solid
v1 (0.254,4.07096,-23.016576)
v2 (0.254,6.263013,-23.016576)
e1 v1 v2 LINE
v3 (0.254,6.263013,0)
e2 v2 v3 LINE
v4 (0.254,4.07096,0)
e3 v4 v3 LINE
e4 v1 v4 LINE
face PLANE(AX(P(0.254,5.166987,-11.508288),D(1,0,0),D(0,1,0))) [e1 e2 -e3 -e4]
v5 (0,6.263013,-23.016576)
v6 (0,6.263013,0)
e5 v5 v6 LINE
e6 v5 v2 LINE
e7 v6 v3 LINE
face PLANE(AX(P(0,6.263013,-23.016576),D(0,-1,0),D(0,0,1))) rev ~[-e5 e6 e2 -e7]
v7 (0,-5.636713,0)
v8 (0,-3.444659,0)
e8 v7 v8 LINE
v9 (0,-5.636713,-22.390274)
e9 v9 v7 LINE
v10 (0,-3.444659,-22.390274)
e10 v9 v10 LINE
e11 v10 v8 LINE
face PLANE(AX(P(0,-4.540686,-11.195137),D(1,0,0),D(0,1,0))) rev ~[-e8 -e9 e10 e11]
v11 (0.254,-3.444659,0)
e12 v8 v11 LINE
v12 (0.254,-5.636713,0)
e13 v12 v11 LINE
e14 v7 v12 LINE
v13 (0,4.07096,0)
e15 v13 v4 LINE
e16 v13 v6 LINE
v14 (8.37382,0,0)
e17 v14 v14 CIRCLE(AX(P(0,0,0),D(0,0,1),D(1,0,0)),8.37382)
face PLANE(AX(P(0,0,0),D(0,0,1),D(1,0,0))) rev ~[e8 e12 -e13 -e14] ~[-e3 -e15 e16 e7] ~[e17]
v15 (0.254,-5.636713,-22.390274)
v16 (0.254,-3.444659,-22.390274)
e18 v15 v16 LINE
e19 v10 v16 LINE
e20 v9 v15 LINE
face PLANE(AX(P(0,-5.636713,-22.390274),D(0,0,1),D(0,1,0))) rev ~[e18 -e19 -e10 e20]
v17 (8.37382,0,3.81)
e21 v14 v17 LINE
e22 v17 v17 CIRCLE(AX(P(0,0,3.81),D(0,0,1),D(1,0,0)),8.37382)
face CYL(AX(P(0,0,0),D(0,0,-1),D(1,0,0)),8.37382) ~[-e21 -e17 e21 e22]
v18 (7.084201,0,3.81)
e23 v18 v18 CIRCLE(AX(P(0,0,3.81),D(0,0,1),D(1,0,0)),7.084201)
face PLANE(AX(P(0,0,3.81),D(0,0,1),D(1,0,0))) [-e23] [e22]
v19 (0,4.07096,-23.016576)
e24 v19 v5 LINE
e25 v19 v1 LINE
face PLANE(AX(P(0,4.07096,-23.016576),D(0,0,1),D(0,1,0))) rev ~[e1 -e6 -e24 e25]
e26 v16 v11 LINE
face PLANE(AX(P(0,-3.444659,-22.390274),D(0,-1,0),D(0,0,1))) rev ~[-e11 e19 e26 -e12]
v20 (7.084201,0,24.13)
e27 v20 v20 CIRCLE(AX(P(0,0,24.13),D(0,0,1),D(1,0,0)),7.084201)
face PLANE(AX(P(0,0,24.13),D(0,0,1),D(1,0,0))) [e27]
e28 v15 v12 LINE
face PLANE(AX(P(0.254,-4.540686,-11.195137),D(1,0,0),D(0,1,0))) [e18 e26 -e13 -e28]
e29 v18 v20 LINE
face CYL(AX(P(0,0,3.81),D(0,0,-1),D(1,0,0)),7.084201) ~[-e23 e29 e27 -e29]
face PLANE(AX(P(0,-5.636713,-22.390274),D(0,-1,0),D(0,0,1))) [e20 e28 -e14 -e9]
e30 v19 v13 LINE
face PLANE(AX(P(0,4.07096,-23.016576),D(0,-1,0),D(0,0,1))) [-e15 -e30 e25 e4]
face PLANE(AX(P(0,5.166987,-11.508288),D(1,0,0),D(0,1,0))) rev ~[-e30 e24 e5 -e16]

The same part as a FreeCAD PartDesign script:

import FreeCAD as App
import Part
import Sketcher
from FreeCAD import Vector
Q = App.Units.Quantity

doc = App.newDocument("Part")
body = doc.addObject("PartDesign::Body", "Body")

# Sketch on XY plane
sketch1 = doc.addObject("Sketcher::SketchObject", "Sketch")
body.addObject(sketch1)
sketch1.AttachmentSupport = (doc.XY_Plane, [""])
sketch1.MapMode = "FlatFace"
sketch1.addGeometry(Part.Circle(Vector(0, 0, 0), Vector(0, 0, 1), 8.37382), False)
sketch1.addConstraint(Sketcher.Constraint("Coincident", 0, 3, -1, 1))
sketch1.addConstraint(Sketcher.Constraint("Diameter", 0, Q("16.74764 mm")))
pad1 = doc.addObject("PartDesign::Pad", "Pad")
body.addObject(pad1)
pad1.Profile = sketch1
pad1.Length = Q("0.15 in")

# Sketch on XY plane
sketch2 = doc.addObject("Sketcher::SketchObject", "Sketch001")
body.addObject(sketch2)
sketch2.AttachmentSupport = (doc.XY_Plane, [""])
sketch2.MapMode = "FlatFace"
sketch2.AttachmentOffset = App.Placement(Vector(0, 0, 0.15 * 25.4), App.Rotation())
sketch2.addGeometry(Part.Circle(Vector(0, 0, 0), Vector(0, 0, 1), 7.084201), False)
sketch2.addConstraint(Sketcher.Constraint("Coincident", 0, 3, -1, 1))
sketch2.addConstraint(Sketcher.Constraint("Diameter", 0, Q("14.168402 mm")))
pad2 = doc.addObject("PartDesign::Pad", "Pad001")
body.addObject(pad2)
pad2.Profile = sketch2
pad2.Length = Q("0.8 in")

# Sketch on YZ plane
sketch3 = doc.addObject("Sketcher::SketchObject", "Sketch002")
body.addObject(sketch3)
sketch3.AttachmentSupport = (doc.YZ_Plane, [""])
sketch3.MapMode = "FlatFace"
sketch3.addGeometry(Part.LineSegment(Vector(4.07096, 0, 0), Vector(4.07096, -23.016576, 0)), False)
sketch3.addGeometry(Part.LineSegment(Vector(4.07096, -23.016576, 0), Vector(6.263013, -23.016576, 0)), False)
sketch3.addGeometry(Part.LineSegment(Vector(6.263013, -23.016576, 0), Vector(6.263013, 0, 0)), False)
sketch3.addGeometry(Part.LineSegment(Vector(6.263013, 0, 0), Vector(4.07096, 0, 0)), False)
sketch3.addConstraint(Sketcher.Constraint("Coincident", 0, 2, 1, 1))
sketch3.addConstraint(Sketcher.Constraint("Coincident", 1, 2, 2, 1))
sketch3.addConstraint(Sketcher.Constraint("Coincident", 2, 2, 3, 1))
sketch3.addConstraint(Sketcher.Constraint("Coincident", 3, 2, 0, 1))
sketch3.addConstraint(Sketcher.Constraint("Vertical", 0))
sketch3.addConstraint(Sketcher.Constraint("Horizontal", 1))
sketch3.addConstraint(Sketcher.Constraint("Vertical", 2))
sketch3.addConstraint(Sketcher.Constraint("Horizontal", 3))
sketch3.addConstraint(Sketcher.Constraint("PointOnObject", 2, 2, -1))
sketch3.addConstraint(Sketcher.Constraint("DistanceX", 1, 1, 1, 2, Q("2.192053 mm")))
sketch3.addConstraint(Sketcher.Constraint("DistanceY", 0, 2, 0, 1, Q("23.016576 mm")))
sketch3.addConstraint(Sketcher.Constraint("DistanceX", -1, 1, 0, 2, Q("4.07096 mm")))
pad3 = doc.addObject("PartDesign::Pad", "Pad002")
body.addObject(pad3)
pad3.Profile = sketch3
pad3.Length = Q("0.01 in")

# Sketch on YZ plane
sketch4 = doc.addObject("Sketcher::SketchObject", "Sketch003")
body.addObject(sketch4)
sketch4.AttachmentSupport = (doc.YZ_Plane, [""])
sketch4.MapMode = "FlatFace"
sketch4.addGeometry(Part.LineSegment(Vector(-5.636713, 0, 0), Vector(-5.636713, -22.390274, 0)), False)
sketch4.addGeometry(Part.LineSegment(Vector(-5.636713, -22.390274, 0), Vector(-3.444659, -22.390274, 0)), False)
sketch4.addGeometry(Part.LineSegment(Vector(-3.444659, -22.390274, 0), Vector(-3.444659, 0, 0)), False)
sketch4.addGeometry(Part.LineSegment(Vector(-3.444659, 0, 0), Vector(-5.636713, 0, 0)), False)
sketch4.addConstraint(Sketcher.Constraint("Coincident", 0, 2, 1, 1))
sketch4.addConstraint(Sketcher.Constraint("Coincident", 1, 2, 2, 1))
sketch4.addConstraint(Sketcher.Constraint("Coincident", 2, 2, 3, 1))
sketch4.addConstraint(Sketcher.Constraint("Coincident", 3, 2, 0, 1))
sketch4.addConstraint(Sketcher.Constraint("Vertical", 0))
sketch4.addConstraint(Sketcher.Constraint("Horizontal", 1))
sketch4.addConstraint(Sketcher.Constraint("Vertical", 2))
sketch4.addConstraint(Sketcher.Constraint("Horizontal", 3))
sketch4.addConstraint(Sketcher.Constraint("PointOnObject", 2, 2, -1))
sketch4.addConstraint(Sketcher.Constraint("DistanceX", 1, 1, 1, 2, Q("2.192054 mm")))
sketch4.addConstraint(Sketcher.Constraint("DistanceY", 0, 2, 0, 1, Q("22.390274 mm")))
sketch4.addConstraint(Sketcher.Constraint("DistanceX", 1, 2, -1, 1, Q("3.444659 mm")))
pad4 = doc.addObject("PartDesign::Pad", "Pad003")
body.addObject(pad4)
pad4.Profile = sketch4
pad4.Length = Q("0.01 in")

doc.recompute()
